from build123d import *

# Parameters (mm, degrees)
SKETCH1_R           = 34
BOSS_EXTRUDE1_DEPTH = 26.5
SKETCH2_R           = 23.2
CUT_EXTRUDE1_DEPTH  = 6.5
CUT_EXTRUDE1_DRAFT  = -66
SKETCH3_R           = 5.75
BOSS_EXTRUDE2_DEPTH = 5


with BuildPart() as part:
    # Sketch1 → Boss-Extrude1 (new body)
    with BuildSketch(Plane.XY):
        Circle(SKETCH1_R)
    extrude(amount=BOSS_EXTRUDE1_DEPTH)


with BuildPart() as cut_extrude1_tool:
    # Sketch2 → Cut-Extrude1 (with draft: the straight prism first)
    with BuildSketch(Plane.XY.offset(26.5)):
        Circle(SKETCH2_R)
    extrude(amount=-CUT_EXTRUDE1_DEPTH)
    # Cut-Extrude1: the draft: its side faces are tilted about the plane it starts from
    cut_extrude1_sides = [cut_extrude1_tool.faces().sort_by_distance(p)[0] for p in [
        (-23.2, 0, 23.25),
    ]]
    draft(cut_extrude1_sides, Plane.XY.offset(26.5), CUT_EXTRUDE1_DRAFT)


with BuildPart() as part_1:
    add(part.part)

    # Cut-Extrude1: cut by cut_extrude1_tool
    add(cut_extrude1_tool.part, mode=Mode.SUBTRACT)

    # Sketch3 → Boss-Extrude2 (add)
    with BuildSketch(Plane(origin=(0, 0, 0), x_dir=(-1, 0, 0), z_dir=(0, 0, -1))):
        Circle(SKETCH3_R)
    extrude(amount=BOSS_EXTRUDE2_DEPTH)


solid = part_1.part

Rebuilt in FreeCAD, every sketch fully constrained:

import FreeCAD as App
import Part
import Sketcher


def faces_at(feature, points):
    """Names of the faces that lie closest to the given points."""
    faces = feature.Shape.Faces
    near = lambda p: min(range(len(faces)), key=lambda i: faces[i].distToShape(Part.Vertex(*p))[0])
    return sorted({f"Face{near(p) + 1}" for p in points})

doc = App.newDocument("Part")
params = doc.addObject("Spreadsheet::Sheet", "Params")
for row, (alias, value) in enumerate([
    ("sketch1_diameter", "68 mm"),
    ("pad1_length", "26.5 mm"),
    ("sketch2_diameter", "46.4 mm"),
    ("pad2_length", "6.5 mm"),
    ("draft_angle", "66 deg"),
    ("sketch3_diameter", "11.5 mm"),
    ("pad3_length", "5 mm"),
], start=1):
    params.set(f"A{row}", alias)
    params.set(f"B{row}", "=" + value)
    params.setAlias(f"B{row}", alias)

body = doc.addObject("PartDesign::Body", "Body")

# Sketch on XY plane
sketch1 = body.newObject("Sketcher::SketchObject", "Sketch")
sketch1.AttachmentSupport = (doc.getObject("XY_Plane"), [""])
sketch1.MapMode = "FlatFace"
sketch1.addGeometry(Part.Circle(App.Vector(0, 0, 0), App.Vector(0, 0, 1), 34), False)
sketch1.addConstraint(Sketcher.Constraint("Coincident", 0, 3, -1, 1))
sketch1.addConstraint(Sketcher.Constraint("Diameter", 0, 68.0))
sketch1.setExpression("Constraints[1]", "Params.sketch1_diameter")
pad1 = body.newObject("PartDesign::Pad", "Pad")
pad1.Profile = sketch1
pad1.setExpression("Length", "Params.pad1_length")
body2 = doc.addObject("PartDesign::Body", "Body001")

# Sketch on XY plane
sketch2 = body2.newObject("Sketcher::SketchObject", "Sketch001")
sketch2.AttachmentSupport = (doc.getObject("XY_Plane001"), [""])
sketch2.MapMode = "FlatFace"
sketch2.AttachmentOffset = App.Placement(App.Vector(0, 0, 26.5), App.Rotation())
sketch2.addGeometry(Part.Circle(App.Vector(0, 0, 0), App.Vector(0, 0, 1), 23), False)
sketch2.addConstraint(Sketcher.Constraint("Coincident", 0, 3, -1, 1))
sketch2.addConstraint(Sketcher.Constraint("Diameter", 0, 46.4))
sketch2.setExpression("Constraints[1]", "Params.sketch2_diameter")
pad2 = body2.newObject("PartDesign::Pad", "Pad001")
pad2.Profile = sketch2
pad2.setExpression("Length", "Params.pad2_length")
pad2.Reversed = True
doc.recompute()

datumplane = body2.newObject("PartDesign::Plane", "DatumPlane")
datumplane.AttachmentSupport = (doc.getObject("XY_Plane001"), [""])
datumplane.MapMode = "FlatFace"
datumplane.AttachmentOffset = App.Placement(App.Vector(0, 0, 26.5), App.Rotation())
draft = body2.newObject("PartDesign::Draft", "Draft")
draft.Base = (pad2, faces_at(pad2, [(-23.2, 0, 23.25)]))
draft.NeutralPlane = (datumplane, [""])
draft.setExpression("Angle", "Params.draft_angle")
draft.Reversed = True
doc.recompute()

boolean = body.newObject("PartDesign::Boolean", "Boolean")
boolean.Type = "Cut"
boolean.addObjects([body2])

# Sketch on XY plane
sketch3 = body.newObject("Sketcher::SketchObject", "Sketch002")
sketch3.AttachmentSupport = (doc.getObject("XY_Plane"), [""])
sketch3.MapMode = "FlatFace"
sketch3.addGeometry(Part.Circle(App.Vector(0, 0, 0), App.Vector(0, 0, 1), 6), False)
sketch3.addConstraint(Sketcher.Constraint("Coincident", 0, 3, -1, 1))
sketch3.addConstraint(Sketcher.Constraint("Diameter", 0, 11.5))
sketch3.setExpression("Constraints[1]", "Params.sketch3_diameter")
pad3 = body.newObject("PartDesign::Pad", "Pad002")
pad3.Profile = sketch3
pad3.setExpression("Length", "Params.pad3_length")
pad3.Reversed = True

doc.recompute()
